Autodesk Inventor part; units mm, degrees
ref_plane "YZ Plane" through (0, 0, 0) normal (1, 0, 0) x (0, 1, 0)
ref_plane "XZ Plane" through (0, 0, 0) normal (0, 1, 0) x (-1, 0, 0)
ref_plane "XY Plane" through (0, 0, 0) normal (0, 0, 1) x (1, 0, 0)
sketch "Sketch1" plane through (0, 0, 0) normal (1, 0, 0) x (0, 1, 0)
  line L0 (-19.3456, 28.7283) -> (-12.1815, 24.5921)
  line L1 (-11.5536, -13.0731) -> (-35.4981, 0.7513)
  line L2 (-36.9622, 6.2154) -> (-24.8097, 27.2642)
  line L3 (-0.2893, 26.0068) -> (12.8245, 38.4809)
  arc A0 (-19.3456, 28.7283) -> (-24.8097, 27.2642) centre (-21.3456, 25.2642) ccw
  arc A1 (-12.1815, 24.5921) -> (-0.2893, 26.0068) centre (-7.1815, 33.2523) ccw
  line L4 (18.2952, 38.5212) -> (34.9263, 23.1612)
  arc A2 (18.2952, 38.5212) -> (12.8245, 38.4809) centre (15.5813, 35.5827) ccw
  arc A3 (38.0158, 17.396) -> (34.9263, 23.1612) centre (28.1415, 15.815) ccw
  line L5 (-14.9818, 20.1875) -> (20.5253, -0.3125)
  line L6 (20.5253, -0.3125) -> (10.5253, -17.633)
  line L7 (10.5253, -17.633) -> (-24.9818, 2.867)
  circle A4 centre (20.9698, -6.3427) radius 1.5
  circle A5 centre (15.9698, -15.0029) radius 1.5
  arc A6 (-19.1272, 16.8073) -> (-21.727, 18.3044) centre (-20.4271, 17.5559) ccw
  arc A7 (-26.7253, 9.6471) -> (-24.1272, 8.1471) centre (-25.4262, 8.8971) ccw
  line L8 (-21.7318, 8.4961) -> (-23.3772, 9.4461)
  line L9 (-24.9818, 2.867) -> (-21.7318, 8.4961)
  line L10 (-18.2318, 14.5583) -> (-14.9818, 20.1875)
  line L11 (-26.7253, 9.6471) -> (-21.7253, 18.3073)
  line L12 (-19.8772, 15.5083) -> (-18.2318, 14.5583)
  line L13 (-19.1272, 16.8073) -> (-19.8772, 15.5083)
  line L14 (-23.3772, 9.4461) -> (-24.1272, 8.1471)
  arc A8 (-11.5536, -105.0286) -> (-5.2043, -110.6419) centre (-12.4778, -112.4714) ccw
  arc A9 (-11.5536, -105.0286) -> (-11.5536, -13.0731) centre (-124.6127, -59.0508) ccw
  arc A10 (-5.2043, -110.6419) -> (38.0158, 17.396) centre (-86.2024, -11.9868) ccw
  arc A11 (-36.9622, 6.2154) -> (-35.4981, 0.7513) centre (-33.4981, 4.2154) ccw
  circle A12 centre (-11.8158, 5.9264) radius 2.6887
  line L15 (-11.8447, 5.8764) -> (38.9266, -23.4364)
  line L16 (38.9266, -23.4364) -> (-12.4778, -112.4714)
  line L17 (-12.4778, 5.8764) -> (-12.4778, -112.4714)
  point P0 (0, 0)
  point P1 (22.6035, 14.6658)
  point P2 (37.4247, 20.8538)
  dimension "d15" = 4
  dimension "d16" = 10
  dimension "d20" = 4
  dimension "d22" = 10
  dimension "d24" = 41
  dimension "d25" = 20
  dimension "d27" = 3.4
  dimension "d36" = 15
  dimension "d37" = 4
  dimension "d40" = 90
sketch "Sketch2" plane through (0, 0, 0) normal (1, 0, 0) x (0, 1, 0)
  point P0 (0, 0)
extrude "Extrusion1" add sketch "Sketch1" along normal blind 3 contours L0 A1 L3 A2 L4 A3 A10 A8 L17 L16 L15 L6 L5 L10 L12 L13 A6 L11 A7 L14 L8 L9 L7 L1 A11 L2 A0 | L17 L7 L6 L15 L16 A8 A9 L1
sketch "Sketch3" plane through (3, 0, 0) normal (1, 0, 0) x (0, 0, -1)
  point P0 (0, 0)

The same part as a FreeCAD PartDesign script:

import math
import FreeCAD as App
import Part
import Sketcher

doc = App.newDocument("Part")
body = doc.addObject("PartDesign::Body", "Body")

sketch1 = body.newObject("Sketcher::SketchObject", "Sketch")
sketch1.AttachmentSupport = (doc.getObject("YZ_Plane"), [""])
sketch1.MapMode = "FlatFace"
sketch1.addGeometry(Part.LineSegment(App.Vector(-12.1815, 24.5921, 0), App.Vector(-19.3456, 28.7283, 0)), False)
sketch1.addGeometry(Part.ArcOfCircle(Part.Circle(App.Vector(-21.3456, 25.2642, 0), App.Vector(0, 0, 1), 3.999999), math.radians(59.999988), math.radians(149.999988)), False)
sketch1.addGeometry(Part.LineSegment(App.Vector(-24.8097, 27.2642, 0), App.Vector(-36.9622, 6.2154, 0)), False)
sketch1.addGeometry(Part.ArcOfCircle(Part.Circle(App.Vector(-33.4981, 4.2154, 0), App.Vector(0, 0, 1), 3.999999), math.radians(149.999988), math.radians(239.999988)), False)
sketch1.addGeometry(Part.LineSegment(App.Vector(-35.4981, 0.7513, 0), App.Vector(-11.5536, -13.0731, 0)), False)
sketch1.addGeometry(Part.ArcOfCircle(Part.Circle(App.Vector(-124.6127, -59.0508, 0), App.Vector(0, 0, 1), 122.050474), math.radians(-22.130125), math.radians(22.130081)), False)
sketch1.addGeometry(Part.ArcOfCircle(Part.Circle(App.Vector(-12.4778, -112.4714, 0), App.Vector(0, 0, 1), 7.499961), math.radians(82.921604), math.radians(374.118694)), False)
sketch1.addGeometry(Part.ArcOfCircle(Part.Circle(App.Vector(-86.2024, -11.9868, 0), App.Vector(0, 0, 1), 127.646077), math.radians(-50.61322), math.radians(13.308239)), False)
sketch1.addGeometry(Part.ArcOfCircle(Part.Circle(App.Vector(28.1415, 15.815, 0), App.Vector(0, 0, 1), 10.000068), math.radians(9.096568), math.radians(47.275065)), False)
sketch1.addGeometry(Part.LineSegment(App.Vector(34.9263, 23.1612, 0), App.Vector(18.2952, 38.5212, 0)), False)
sketch1.addGeometry(Part.ArcOfCircle(Part.Circle(App.Vector(15.5813, 35.5827, 0), App.Vector(0, 0, 1), 4.000004), math.radians(47.27547), math.radians(133.567651)), False)
sketch1.addGeometry(Part.LineSegment(App.Vector(12.8245, 38.4809, 0), App.Vector(-0.2893, 26.0068, 0)), False)
sketch1.addGeometry(Part.ArcOfCircle(Part.Circle(App.Vector(-7.1815, 33.2523, 0), App.Vector(0, 0, 1), 9.999953), math.radians(-120.000155), math.radians(-46.431519)), False)
sketch1.addGeometry(Part.LineSegment(App.Vector(20.5253, -0.3125, 0), App.Vector(10.5253, -17.633, 0)), False)
sketch1.addGeometry(Part.LineSegment(App.Vector(10.5253, -17.633, 0), App.Vector(-24.9818, 2.867, 0)), False)
sketch1.addGeometry(Part.LineSegment(App.Vector(-24.9818, 2.867, 0), App.Vector(-21.7318, 8.4961, 0)), False)
sketch1.addGeometry(Part.LineSegment(App.Vector(-21.7318, 8.4961, 0), App.Vector(-23.3772, 9.4461, 0)), False)
sketch1.addGeometry(Part.LineSegment(App.Vector(-23.3772, 9.4461, 0), App.Vector(-24.1272, 8.1471, 0)), False)
sketch1.addGeometry(Part.ArcOfCircle(Part.Circle(App.Vector(-25.4262, 8.8971, 0), App.Vector(0, 0, 1), 1.500054), math.radians(150.001182), math.radians(329.999272)), False)
sketch1.addGeometry(Part.LineSegment(App.Vector(-26.7253, 9.6471, 0), App.Vector(-21.726981, 18.304389, 0)), False)
sketch1.addGeometry(Part.ArcOfCircle(Part.Circle(App.Vector(-20.4271, 17.5559, 0), App.Vector(0, 0, 1), 1.500047), math.radians(-29.937229), math.radians(150.066081)), False)
sketch1.addGeometry(Part.LineSegment(App.Vector(-19.1272, 16.8073, 0), App.Vector(-19.8772, 15.5083, 0)), False)
sketch1.addGeometry(Part.LineSegment(App.Vector(-19.8772, 15.5083, 0), App.Vector(-18.2318, 14.5583, 0)), False)
sketch1.addGeometry(Part.LineSegment(App.Vector(-18.2318, 14.5583, 0), App.Vector(-14.9818, 20.1875, 0)), False)
sketch1.addGeometry(Part.LineSegment(App.Vector(-14.9818, 20.1875, 0), App.Vector(20.5253, -0.3125, 0)), False)
sketch1.addGeometry(Part.Circle(App.Vector(20.9698, -6.3427, 0), App.Vector(0, 0, 1), 1.5), False)
sketch1.addGeometry(Part.Circle(App.Vector(15.9698, -15.0029, 0), App.Vector(0, 0, 1), 1.5), False)
sketch1.addConstraint(Sketcher.Constraint("Tangent", 0, 2, 1, 1))
sketch1.addConstraint(Sketcher.Constraint("Tangent", 1, 2, 2, 1))
sketch1.addConstraint(Sketcher.Constraint("Tangent", 2, 2, 3, 1))
sketch1.addConstraint(Sketcher.Constraint("Tangent", 3, 2, 4, 1))
sketch1.addConstraint(Sketcher.Constraint("Coincident", 4, 2, 5, 2))
sketch1.addConstraint(Sketcher.Constraint("Coincident", 5, 1, 6, 1))
sketch1.addConstraint(Sketcher.Constraint("Coincident", 6, 2, 7, 1))
sketch1.addConstraint(Sketcher.Constraint("Coincident", 7, 2, 8, 1))
sketch1.addConstraint(Sketcher.Constraint("Tangent", 8, 2, 9, 1))
sketch1.addConstraint(Sketcher.Constraint("Tangent", 9, 2, 10, 1))
sketch1.addConstraint(Sketcher.Constraint("Tangent", 10, 2, 11, 1))
sketch1.addConstraint(Sketcher.Constraint("Tangent", 11, 2, 12, 2))
sketch1.addConstraint(Sketcher.Constraint("Tangent", 12, 1, 0, 1))
sketch1.addConstraint(Sketcher.Constraint("Coincident", 13, 2, 14, 1))
sketch1.addConstraint(Sketcher.Constraint("Coincident", 14, 2, 15, 1))
sketch1.addConstraint(Sketcher.Constraint("Coincident", 15, 2, 16, 1))
sketch1.addConstraint(Sketcher.Constraint("Coincident", 16, 2, 17, 1))
sketch1.addConstraint(Sketcher.Constraint("Tangent", 17, 2, 18, 2))
sketch1.addConstraint(Sketcher.Constraint("Tangent", 18, 1, 19, 1))
sketch1.addConstraint(Sketcher.Constraint("Coincident", 19, 2, 20, 2))
sketch1.addConstraint(Sketcher.Constraint("Coincident", 20, 1, 21, 1))
sketch1.addConstraint(Sketcher.Constraint("Coincident", 21, 2, 22, 1))
sketch1.addConstraint(Sketcher.Constraint("Coincident", 22, 2, 23, 1))
sketch1.addConstraint(Sketcher.Constraint("Coincident", 23, 2, 24, 1))
sketch1.addConstraint(Sketcher.Constraint("Coincident", 24, 2, 13, 1))
sketch1.addConstraint(Sketcher.Constraint("Equal", 1, 3))
sketch1.addConstraint(Sketcher.Constraint("Equal", 3, 10))
sketch1.addConstraint(Sketcher.Constraint("Equal", 8, 12))
sketch1.addConstraint(Sketcher.Constraint("Equal", 18, 20))
sketch1.addConstraint(Sketcher.Constraint("Equal", 20, 25))
sketch1.addConstraint(Sketcher.Constraint("Equal", 25, 26))
sketch1.addConstraint(Sketcher.Constraint("Perpendicular", 0, 2))
sketch1.addConstraint(Sketcher.Constraint("Perpendicular", 2, 4))
sketch1.addConstraint(Sketcher.Constraint("Perpendicular", 4, 13))
sketch1.addConstraint(Sketcher.Constraint("Perpendicular", 13, 14))
sketch1.addConstraint(Sketcher.Constraint("Perpendicular", 14, 15))
sketch1.addConstraint(Sketcher.Constraint("Perpendicular", 15, 16))
sketch1.addConstraint(Sketcher.Constraint("Perpendicular", 16, 17))
sketch1.addConstraint(Sketcher.Constraint("Parallel", 17, 19))
sketch1.addConstraint(Sketcher.Constraint("Parallel", 19, 21))
sketch1.addConstraint(Sketcher.Constraint("Perpendicular", 21, 22))
sketch1.addConstraint(Sketcher.Constraint("Perpendicular", 22, 23))
sketch1.addConstraint(Sketcher.Constraint("Perpendicular", 23, 24))
sketch1.addConstraint(Sketcher.Constraint("Vertical", 4, 2, 5, 1))
sketch1.addConstraint(Sketcher.Constraint("Equal", 17, 21))
sketch1.addConstraint(Sketcher.Constraint("Equal", 16, 22))
sketch1.addConstraint(Sketcher.Constraint("Equal", 15, 23))
sketch1.addConstraint(Sketcher.Constraint("Radius", 1, 4.0))
sketch1.addConstraint(Sketcher.Constraint("Radius", 8, 10.0))
sketch1.addConstraint(Sketcher.Constraint("Radius", 6, 7.5))
sketch1.addConstraint(Sketcher.Constraint("Distance", 13, 20.0))
sketch1.addConstraint(Sketcher.Constraint("Distance", 14, 41.0))
sketch1.addConstraint(Sketcher.Constraint("Diameter", 25, 3.0))
sketch1.addConstraint(Sketcher.Constraint("DistanceX", 13, 2, 24, 2, 10.0))
sketch1.addConstraint(Sketcher.Constraint("Radius", 7, 127.646))
sketch1.addConstraint(Sketcher.Constraint("DistanceX", 26, 3, 25, 3, 5.0))
sketch1.addConstraint(Sketcher.Constraint("Distance", 15, 6.5))
sketch1.addConstraint(Sketcher.Constraint("Distance", 16, 1.9))
sketch1.addConstraint(Sketcher.Constraint("Distance", 17, 1.5))
sketch1.addConstraint(Sketcher.Constraint("Radius", 5, 122.0505))
sketch1.addConstraint(Sketcher.Constraint("DistanceY", 26, 3, 18, 3, 23.9))
sketch1.addConstraint(Sketcher.Constraint("DistanceX", 17, 2, 20, 3, 3.7))
sketch1.addConstraint(Sketcher.Constraint("DistanceX", 19, 2, 20, 3, 1.3))
sketch1.addConstraint(Sketcher.Constraint("DistanceY", 5, 1, 3, 2, 105.78))
sketch1.addConstraint(Sketcher.Constraint("DistanceY", 8, 2, 9, 2, 15.36))
sketch1.addConstraint(Sketcher.Constraint("DistanceY", 13, 2, 4, 2, 4.56))
sketch1.addConstraint(Sketcher.Constraint("Distance", 2, 24.305))
sketch1.addConstraint(Sketcher.Constraint("Distance", 9, 22.639))
sketch1.addConstraint(Sketcher.Constraint("Distance", 11, 18.099))
sketch1.addConstraint(Sketcher.Constraint("DistanceX", 3, 3, -1, 1, 33.498))
sketch1.addConstraint(Sketcher.Constraint("DistanceY", -1, 1, 8, 3, 15.815))
sketch1.addConstraint(Sketcher.Constraint("DistanceY", -1, 1, 18, 3, 8.897))
sketch1.addConstraint(Sketcher.Constraint("DistanceX", 20, 3, -1, 1, 20.427))
sketch1.addConstraint(Sketcher.Constraint("DistanceY", 6, 2, -1, 1, 110.642))
sketch1.addConstraint(Sketcher.Constraint("DistanceY", -1, 1, 7, 2, 17.396))
sketch1.addConstraint(Sketcher.Constraint("DistanceY", -1, 1, 10, 2, 38.481))
sketch1.addConstraint(Sketcher.Constraint("DistanceX", 5, 3, 1, 3, 103.267))
sketch1.addConstraint(Sketcher.Constraint("DistanceX", 5, 3, 6, 3, 112.135))
sketch1.addConstraint(Sketcher.Constraint("DistanceX", 20, 3, 25, 3, 41.397))
sketch1.addConstraint(Sketcher.Constraint("DistanceY", 25, 3, 12, 3, 39.595))
pad1 = body.newObject("PartDesign::Pad", "Pad")
pad1.Profile = sketch1
pad1.Length = 3

doc.recompute()
